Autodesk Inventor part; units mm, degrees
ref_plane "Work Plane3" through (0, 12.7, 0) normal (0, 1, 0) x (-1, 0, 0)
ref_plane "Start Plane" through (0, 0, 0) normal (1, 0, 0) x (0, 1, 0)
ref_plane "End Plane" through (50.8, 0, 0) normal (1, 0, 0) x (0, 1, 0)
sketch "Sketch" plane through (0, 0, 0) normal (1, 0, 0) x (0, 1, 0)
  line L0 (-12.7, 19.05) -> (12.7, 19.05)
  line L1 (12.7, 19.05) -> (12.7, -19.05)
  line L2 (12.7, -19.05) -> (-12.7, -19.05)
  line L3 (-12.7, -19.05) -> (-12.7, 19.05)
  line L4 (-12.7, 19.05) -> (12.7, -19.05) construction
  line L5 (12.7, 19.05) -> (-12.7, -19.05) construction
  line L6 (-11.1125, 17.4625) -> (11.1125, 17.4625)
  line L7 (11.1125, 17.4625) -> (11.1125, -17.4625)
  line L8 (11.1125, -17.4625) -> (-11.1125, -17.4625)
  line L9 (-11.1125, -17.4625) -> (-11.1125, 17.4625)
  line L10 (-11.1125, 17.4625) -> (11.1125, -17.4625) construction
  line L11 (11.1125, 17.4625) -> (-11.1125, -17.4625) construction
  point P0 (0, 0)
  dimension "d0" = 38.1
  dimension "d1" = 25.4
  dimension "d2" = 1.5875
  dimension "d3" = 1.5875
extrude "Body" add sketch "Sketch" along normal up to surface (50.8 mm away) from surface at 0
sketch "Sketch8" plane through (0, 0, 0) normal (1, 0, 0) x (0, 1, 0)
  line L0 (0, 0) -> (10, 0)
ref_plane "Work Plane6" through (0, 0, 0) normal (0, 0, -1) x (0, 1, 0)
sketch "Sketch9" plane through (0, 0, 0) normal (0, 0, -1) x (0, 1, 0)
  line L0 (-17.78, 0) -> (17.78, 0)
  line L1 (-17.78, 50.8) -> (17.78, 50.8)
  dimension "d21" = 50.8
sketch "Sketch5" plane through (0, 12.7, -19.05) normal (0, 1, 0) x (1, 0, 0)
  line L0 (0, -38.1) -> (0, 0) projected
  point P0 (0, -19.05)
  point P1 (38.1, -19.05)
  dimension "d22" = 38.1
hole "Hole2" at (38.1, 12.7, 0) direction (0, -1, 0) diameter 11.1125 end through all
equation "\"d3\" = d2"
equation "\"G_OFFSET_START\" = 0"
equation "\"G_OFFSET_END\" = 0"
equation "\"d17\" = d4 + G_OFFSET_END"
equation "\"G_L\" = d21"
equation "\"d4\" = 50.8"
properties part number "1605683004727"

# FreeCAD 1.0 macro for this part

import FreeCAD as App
import Part
import Sketcher
from FreeCAD import Vector
Q = App.Units.Quantity


def add_polygon(sketch, points):
    """Adds a closed chain of lines whose ends are joined by coincident constraints."""
    first, n = sketch.GeometryCount, len(points)
    for a, b in zip(points, points[1:] + points[:1]):
        sketch.addGeometry(Part.LineSegment(App.Vector(*a, 0), App.Vector(*b, 0)), False)
    for i in range(n):
        sketch.addConstraint(Sketcher.Constraint("Coincident", first + i, 2, first + (i + 1) % n, 1))

doc = App.newDocument("Part")
body = doc.addObject("PartDesign::Body", "Body")

# Sketch on YZ plane
sketch1 = doc.addObject("Sketcher::SketchObject", "Sketch")
body.addObject(sketch1)
sketch1.AttachmentSupport = (doc.YZ_Plane, [""])
sketch1.MapMode = "FlatFace"
add_polygon(sketch1, [(13, 19), (-13, 19), (-13, -19), (13, -19)])  # lines 0-3
add_polygon(sketch1, [(-11, -17), (-11, 17), (11, 17), (11, -17)])  # lines 4-7
sketch1.addConstraint(Sketcher.Constraint("Horizontal", 0))
sketch1.addConstraint(Sketcher.Constraint("Vertical", 1))
sketch1.addConstraint(Sketcher.Constraint("Horizontal", 2))
sketch1.addConstraint(Sketcher.Constraint("Vertical", 3))
sketch1.addConstraint(Sketcher.Constraint("Vertical", 4))
sketch1.addConstraint(Sketcher.Constraint("Horizontal", 5))
sketch1.addConstraint(Sketcher.Constraint("Vertical", 6))
sketch1.addConstraint(Sketcher.Constraint("Horizontal", 7))
sketch1.addConstraint(Sketcher.Constraint("Symmetric", 0, 2, 2, 2, -1, 1))
sketch1.addConstraint(Sketcher.Constraint("Symmetric", 4, 2, 6, 2, -1, 1))
sketch1.addConstraint(Sketcher.Constraint("DistanceX", 0, 2, 0, 1, Q("1 in")))
sketch1.addConstraint(Sketcher.Constraint("DistanceY", 1, 2, 1, 1, Q("1.5 in")))
sketch1.addConstraint(Sketcher.Constraint("DistanceX", 0, 2, 4, 2, Q("0.0625 in")))
sketch1.addConstraint(Sketcher.Constraint("DistanceY", 4, 2, 0, 2, Q("0.0625 in")))
pad1 = doc.addObject("PartDesign::Pad", "Pad")
body.addObject(pad1)
pad1.Profile = sketch1
pad1.Length = Q("2 in")

# Sketch on XZ plane
sketch2 = doc.addObject("Sketcher::SketchObject", "Sketch001")
body.addObject(sketch2)
sketch2.AttachmentSupport = (doc.XZ_Plane, [""])
sketch2.MapMode = "FlatFace"
sketch2.AttachmentOffset = App.Placement(Vector(0, 0, -0.5 * 25.4), App.Rotation())
sketch2.addGeometry(Part.Circle(Vector(38, 0, 0), Vector(0, 0, 1), 6), False)
sketch2.addConstraint(Sketcher.Constraint("PointOnObject", 0, 3, -1))
sketch2.addConstraint(Sketcher.Constraint("Diameter", 0, Q("0.4375 in")))
sketch2.addConstraint(Sketcher.Constraint("DistanceX", -1, 1, 0, 3, Q("1.5 in")))
doc.recompute()
hole = doc.addObject("PartDesign::Hole", "Hole")
body.addObject(hole)
hole.Profile = sketch2
hole.ThreadType = "None"
hole.Diameter = Q("0.4375 in")
hole.DepthType = "ThroughAll"
hole.Reversed = True

doc.recompute()
